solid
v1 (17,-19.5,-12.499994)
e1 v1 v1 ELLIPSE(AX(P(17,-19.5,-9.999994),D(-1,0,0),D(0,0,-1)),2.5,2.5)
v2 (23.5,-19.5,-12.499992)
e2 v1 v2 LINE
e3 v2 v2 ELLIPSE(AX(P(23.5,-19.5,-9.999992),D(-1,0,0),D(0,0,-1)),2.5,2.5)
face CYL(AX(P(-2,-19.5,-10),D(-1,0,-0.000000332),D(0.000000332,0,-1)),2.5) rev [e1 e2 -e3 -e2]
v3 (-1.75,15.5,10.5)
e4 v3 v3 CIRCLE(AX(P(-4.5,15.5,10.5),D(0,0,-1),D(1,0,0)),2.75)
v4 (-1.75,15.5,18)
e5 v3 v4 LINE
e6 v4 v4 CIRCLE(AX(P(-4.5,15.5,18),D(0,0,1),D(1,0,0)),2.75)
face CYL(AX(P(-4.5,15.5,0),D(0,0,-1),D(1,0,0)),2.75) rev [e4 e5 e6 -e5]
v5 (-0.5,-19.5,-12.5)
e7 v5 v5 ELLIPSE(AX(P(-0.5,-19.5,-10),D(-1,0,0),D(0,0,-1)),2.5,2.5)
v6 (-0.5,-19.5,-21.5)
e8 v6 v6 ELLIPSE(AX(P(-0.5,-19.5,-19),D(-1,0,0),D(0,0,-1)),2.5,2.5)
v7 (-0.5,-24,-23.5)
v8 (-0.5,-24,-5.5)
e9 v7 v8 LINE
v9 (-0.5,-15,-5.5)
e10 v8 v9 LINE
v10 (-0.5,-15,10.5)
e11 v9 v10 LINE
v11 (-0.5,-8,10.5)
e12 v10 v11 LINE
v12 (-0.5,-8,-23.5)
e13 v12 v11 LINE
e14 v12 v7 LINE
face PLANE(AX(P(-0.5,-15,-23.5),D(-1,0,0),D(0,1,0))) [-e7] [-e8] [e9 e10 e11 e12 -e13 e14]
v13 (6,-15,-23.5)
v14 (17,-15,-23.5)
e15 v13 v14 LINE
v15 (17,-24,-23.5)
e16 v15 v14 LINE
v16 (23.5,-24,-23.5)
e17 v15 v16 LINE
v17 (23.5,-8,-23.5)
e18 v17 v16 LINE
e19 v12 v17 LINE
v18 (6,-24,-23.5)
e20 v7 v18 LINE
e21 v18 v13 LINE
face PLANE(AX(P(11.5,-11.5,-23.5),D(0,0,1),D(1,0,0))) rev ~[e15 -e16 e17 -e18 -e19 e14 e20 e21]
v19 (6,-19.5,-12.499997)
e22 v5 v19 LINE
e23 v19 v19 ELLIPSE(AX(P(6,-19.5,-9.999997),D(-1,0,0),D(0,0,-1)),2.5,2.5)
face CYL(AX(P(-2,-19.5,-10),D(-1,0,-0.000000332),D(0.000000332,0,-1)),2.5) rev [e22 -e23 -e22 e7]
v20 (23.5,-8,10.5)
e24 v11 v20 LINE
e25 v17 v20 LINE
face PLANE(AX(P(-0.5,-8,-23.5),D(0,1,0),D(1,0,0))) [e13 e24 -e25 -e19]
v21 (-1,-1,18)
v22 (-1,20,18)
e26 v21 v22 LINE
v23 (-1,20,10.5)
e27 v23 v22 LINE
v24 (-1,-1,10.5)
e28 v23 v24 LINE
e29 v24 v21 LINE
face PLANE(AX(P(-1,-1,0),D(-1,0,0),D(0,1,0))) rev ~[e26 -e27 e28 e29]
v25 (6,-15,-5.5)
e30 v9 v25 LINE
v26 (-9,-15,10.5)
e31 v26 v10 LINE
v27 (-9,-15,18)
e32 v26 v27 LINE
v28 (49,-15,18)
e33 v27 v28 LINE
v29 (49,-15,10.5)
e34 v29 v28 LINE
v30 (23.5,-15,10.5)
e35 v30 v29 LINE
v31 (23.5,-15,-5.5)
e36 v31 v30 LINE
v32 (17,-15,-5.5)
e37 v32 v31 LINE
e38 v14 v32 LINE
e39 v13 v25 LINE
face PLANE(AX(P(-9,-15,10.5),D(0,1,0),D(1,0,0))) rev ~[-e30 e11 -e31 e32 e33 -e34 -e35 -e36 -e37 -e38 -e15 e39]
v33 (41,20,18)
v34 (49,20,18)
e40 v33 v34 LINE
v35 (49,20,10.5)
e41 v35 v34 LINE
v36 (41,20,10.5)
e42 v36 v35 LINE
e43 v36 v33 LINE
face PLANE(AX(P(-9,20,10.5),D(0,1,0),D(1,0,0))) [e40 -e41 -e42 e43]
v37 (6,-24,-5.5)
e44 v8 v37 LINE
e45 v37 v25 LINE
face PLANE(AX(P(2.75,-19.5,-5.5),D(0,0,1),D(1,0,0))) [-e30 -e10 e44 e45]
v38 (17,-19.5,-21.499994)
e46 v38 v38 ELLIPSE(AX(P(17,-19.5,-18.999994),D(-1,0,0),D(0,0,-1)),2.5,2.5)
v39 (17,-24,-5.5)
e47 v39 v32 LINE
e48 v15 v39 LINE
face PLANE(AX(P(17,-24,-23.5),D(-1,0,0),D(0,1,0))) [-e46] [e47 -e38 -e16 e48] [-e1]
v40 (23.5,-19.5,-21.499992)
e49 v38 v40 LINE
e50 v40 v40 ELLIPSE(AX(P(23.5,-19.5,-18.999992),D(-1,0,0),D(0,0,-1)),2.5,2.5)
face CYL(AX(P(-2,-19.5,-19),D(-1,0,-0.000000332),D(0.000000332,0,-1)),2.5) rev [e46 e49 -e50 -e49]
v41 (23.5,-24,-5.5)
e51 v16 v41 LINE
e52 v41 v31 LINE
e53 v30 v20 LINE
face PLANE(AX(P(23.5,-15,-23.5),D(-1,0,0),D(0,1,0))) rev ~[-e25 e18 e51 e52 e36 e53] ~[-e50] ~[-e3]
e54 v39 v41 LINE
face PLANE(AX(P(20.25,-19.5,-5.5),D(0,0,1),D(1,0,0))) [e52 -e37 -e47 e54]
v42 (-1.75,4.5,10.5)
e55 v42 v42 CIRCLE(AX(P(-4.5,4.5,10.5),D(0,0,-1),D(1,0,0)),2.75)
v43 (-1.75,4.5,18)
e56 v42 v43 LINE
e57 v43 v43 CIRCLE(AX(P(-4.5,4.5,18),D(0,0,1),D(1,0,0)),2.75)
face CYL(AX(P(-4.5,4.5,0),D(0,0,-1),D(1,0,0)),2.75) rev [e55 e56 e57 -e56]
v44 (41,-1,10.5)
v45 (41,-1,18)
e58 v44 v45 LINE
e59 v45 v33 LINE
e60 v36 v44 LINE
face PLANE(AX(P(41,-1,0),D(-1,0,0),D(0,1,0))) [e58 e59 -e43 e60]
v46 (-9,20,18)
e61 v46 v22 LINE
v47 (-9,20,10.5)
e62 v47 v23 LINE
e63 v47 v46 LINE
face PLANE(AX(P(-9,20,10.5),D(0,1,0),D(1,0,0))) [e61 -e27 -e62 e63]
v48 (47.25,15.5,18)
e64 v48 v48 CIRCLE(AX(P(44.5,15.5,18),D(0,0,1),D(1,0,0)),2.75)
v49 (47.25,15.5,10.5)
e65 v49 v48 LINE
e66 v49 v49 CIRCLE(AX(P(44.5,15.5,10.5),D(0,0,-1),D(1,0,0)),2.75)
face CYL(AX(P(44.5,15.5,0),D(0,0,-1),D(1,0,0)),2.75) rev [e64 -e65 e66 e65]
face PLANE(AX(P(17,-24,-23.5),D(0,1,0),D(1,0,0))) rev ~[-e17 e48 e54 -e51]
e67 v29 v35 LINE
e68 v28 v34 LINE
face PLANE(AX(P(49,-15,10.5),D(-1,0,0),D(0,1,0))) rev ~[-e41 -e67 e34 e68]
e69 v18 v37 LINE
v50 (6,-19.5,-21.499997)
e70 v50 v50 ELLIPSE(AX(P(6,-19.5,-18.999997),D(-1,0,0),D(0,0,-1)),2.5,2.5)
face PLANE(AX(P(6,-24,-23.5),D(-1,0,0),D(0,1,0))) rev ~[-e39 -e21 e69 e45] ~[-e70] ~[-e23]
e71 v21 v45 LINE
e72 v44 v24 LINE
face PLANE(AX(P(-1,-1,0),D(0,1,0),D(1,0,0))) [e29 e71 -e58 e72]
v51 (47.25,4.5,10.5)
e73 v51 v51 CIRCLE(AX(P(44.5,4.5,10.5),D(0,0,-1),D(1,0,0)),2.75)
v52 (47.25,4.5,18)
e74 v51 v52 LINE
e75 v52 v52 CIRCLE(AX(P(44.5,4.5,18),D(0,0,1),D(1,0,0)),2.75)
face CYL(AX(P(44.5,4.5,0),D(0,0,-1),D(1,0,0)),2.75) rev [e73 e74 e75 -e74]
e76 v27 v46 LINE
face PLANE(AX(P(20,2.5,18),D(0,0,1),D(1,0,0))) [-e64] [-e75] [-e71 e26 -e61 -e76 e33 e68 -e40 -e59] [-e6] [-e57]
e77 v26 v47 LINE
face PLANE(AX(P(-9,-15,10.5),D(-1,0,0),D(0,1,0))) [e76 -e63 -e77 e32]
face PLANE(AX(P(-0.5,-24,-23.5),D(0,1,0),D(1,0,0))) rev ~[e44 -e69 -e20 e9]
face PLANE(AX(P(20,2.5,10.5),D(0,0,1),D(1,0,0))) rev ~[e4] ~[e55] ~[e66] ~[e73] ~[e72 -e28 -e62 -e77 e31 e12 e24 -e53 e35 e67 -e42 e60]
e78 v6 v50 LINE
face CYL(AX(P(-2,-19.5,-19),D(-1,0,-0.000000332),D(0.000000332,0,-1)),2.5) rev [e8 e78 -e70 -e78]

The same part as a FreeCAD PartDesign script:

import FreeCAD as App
import Part
import Sketcher

V = App.Vector
Q = App.Units.Quantity

doc = App.newDocument("Part")
body = doc.addObject("PartDesign::Body", "Body")

# Sketch on XY plane
sketch1 = doc.addObject("Sketcher::SketchObject", "Sketch")
body.addObject(sketch1)
sketch1.AttachmentSupport = (doc.XY_Plane, [""])
sketch1.MapMode = "FlatFace"
sketch1.addGeometry(Part.Circle(V(0, 0, 0), V(0, 0, 1), 2.5), False)
sketch1.addConstraint([
    Sketcher.Constraint("Coincident", 0, 3, -1, 1),
    Sketcher.Constraint("Diameter", 0, Q("5 mm")),
])
pad1 = doc.addObject("PartDesign::Pad", "Pad")
body.addObject(pad1)
pad1.Profile = sketch1
pad1.Length = 27
body2 = doc.addObject("PartDesign::Body", "Body001")
doc.recompute()

body.Placement = App.Placement(V(-2, -19.5, -10), App.Rotation(V(0, 1, 0), 89.999981))
boolean = doc.addObject("PartDesign::Boolean", "Boolean")
body2.addObject(boolean)
boolean.Type = "Fuse"
boolean.addObjects([body])
body3 = doc.addObject("PartDesign::Body", "Body002")

# Sketch on XY plane
sketch2 = doc.addObject("Sketcher::SketchObject", "Sketch001")
body3.addObject(sketch2)
sketch2.AttachmentSupport = (doc.getObject("XY_Plane002"), [""])
sketch2.MapMode = "FlatFace"
sketch2.addGeometry(Part.Circle(V(0, 0, 0), V(0, 0, 1), 2.5), False)
sketch2.addConstraint([
    Sketcher.Constraint("Coincident", 0, 3, -1, 1),
    Sketcher.Constraint("Diameter", 0, Q("5 mm")),
])
pad2 = doc.addObject("PartDesign::Pad", "Pad001")
body3.addObject(pad2)
pad2.Profile = sketch2
pad2.Length = 27
body4 = doc.addObject("PartDesign::Body", "Body003")
body4.AllowCompound = True
doc.recompute()

body3.Placement = App.Placement(V(-2, -19.5, -19), App.Rotation(V(0, 1, 0), 89.999981))
boolean2 = doc.addObject("PartDesign::Boolean", "Boolean001")
body4.addObject(boolean2)
boolean2.Type = "Fuse"
boolean2.addObjects([body3])
doc.recompute()

boolean3 = doc.addObject("PartDesign::Boolean", "Boolean002")
body4.addObject(boolean3)
boolean3.Type = "Fuse"
boolean3.addObjects([body2])
body5 = doc.addObject("PartDesign::Body", "Body004")

# Sketch on XY plane
sketch3 = doc.addObject("Sketcher::SketchObject", "Sketch002")
body5.addObject(sketch3)
sketch3.AttachmentSupport = (doc.getObject("XY_Plane004"), [""])
sketch3.MapMode = "FlatFace"
sketch3.AttachmentOffset = App.Placement(V(0, 0, -23.5), App.Rotation())
sketch3.addGeometry([
    Part.LineSegment(V(-0.5, -15, 0), V(-0.5, -24, 0)),
    Part.LineSegment(V(-0.5, -24, 0), V(6, -24, 0)),
    Part.LineSegment(V(6, -24, 0), V(6, -15, 0)),
    Part.LineSegment(V(6, -15, 0), V(-0.5, -15, 0)),
], False)
sketch3.addConstraint([
    Sketcher.Constraint("Coincident", 0, 2, 1, 1),
    Sketcher.Constraint("Coincident", 1, 2, 2, 1),
    Sketcher.Constraint("Coincident", 2, 2, 3, 1),
    Sketcher.Constraint("Coincident", 3, 2, 0, 1),
    Sketcher.Constraint("Vertical", 0),
    Sketcher.Constraint("Horizontal", 1),
    Sketcher.Constraint("Vertical", 2),
    Sketcher.Constraint("Horizontal", 3),
    Sketcher.Constraint("DistanceY", 0, 2, 0, 1, Q("9 mm")),
    Sketcher.Constraint("DistanceX", 1, 1, 1, 2, Q("6.5 mm")),
    Sketcher.Constraint("DistanceY", 0, 2, -1, 1, Q("24 mm")),
    Sketcher.Constraint("DistanceX", -1, 1, 1, 2, Q("6 mm")),
])
pad3 = doc.addObject("PartDesign::Pad", "Pad002")
body5.addObject(pad3)
pad3.Profile = sketch3
pad3.Length = 18
body6 = doc.addObject("PartDesign::Body", "Body005")

# Sketch on XY plane
sketch4 = doc.addObject("Sketcher::SketchObject", "Sketch003")
body6.addObject(sketch4)
sketch4.AttachmentSupport = (doc.getObject("XY_Plane005"), [""])
sketch4.MapMode = "FlatFace"
sketch4.AttachmentOffset = App.Placement(V(0, 0, -23.5), App.Rotation())
sketch4.addGeometry([
    Part.LineSegment(V(-0.5, -8, 0), V(-0.5, -15, 0)),
    Part.LineSegment(V(-0.5, -15, 0), V(23.5, -15, 0)),
    Part.LineSegment(V(23.5, -15, 0), V(23.5, -8, 0)),
    Part.LineSegment(V(23.5, -8, 0), V(-0.5, -8, 0)),
], False)
sketch4.addConstraint([
    Sketcher.Constraint("Coincident", 0, 2, 1, 1),
    Sketcher.Constraint("Coincident", 1, 2, 2, 1),
    Sketcher.Constraint("Coincident", 2, 2, 3, 1),
    Sketcher.Constraint("Coincident", 3, 2, 0, 1),
    Sketcher.Constraint("Vertical", 0),
    Sketcher.Constraint("Horizontal", 1),
    Sketcher.Constraint("Vertical", 2),
    Sketcher.Constraint("Horizontal", 3),
    Sketcher.Constraint("DistanceX", 1, 1, 1, 2, Q("24 mm")),
    Sketcher.Constraint("DistanceY", 0, 2, 0, 1, Q("7 mm")),
    Sketcher.Constraint("DistanceY", 0, 2, -1, 1, Q("15 mm")),
    Sketcher.Constraint("DistanceX", 0, 2, -1, 1, Q("0.5 mm")),
])
pad4 = doc.addObject("PartDesign::Pad", "Pad003")
body6.addObject(pad4)
pad4.Profile = sketch4
pad4.Length = 34
body7 = doc.addObject("PartDesign::Body", "Body006")
body7.AllowCompound = True

# Sketch on XY plane
sketch5 = doc.addObject("Sketcher::SketchObject", "Sketch004")
body7.addObject(sketch5)
sketch5.AttachmentSupport = (doc.getObject("XY_Plane006"), [""])
sketch5.MapMode = "FlatFace"
sketch5.AttachmentOffset = App.Placement(V(0, 0, -23.5), App.Rotation())
sketch5.addGeometry([
    Part.LineSegment(V(17, -15, 0), V(17, -24, 0)),
    Part.LineSegment(V(17, -24, 0), V(23.5, -24, 0)),
    Part.LineSegment(V(23.5, -24, 0), V(23.5, -15, 0)),
    Part.LineSegment(V(23.5, -15, 0), V(17, -15, 0)),
], False)
sketch5.addConstraint([
    Sketcher.Constraint("Coincident", 0, 2, 1, 1),
    Sketcher.Constraint("Coincident", 1, 2, 2, 1),
    Sketcher.Constraint("Coincident", 2, 2, 3, 1),
    Sketcher.Constraint("Coincident", 3, 2, 0, 1),
    Sketcher.Constraint("Vertical", 0),
    Sketcher.Constraint("Horizontal", 1),
    Sketcher.Constraint("Vertical", 2),
    Sketcher.Constraint("Horizontal", 3),
    Sketcher.Constraint("DistanceY", 0, 2, 0, 1, Q("9 mm")),
    Sketcher.Constraint("DistanceX", 1, 1, 1, 2, Q("6.5 mm")),
    Sketcher.Constraint("DistanceX", -1, 1, 0, 2, Q("17 mm")),
    Sketcher.Constraint("DistanceY", 0, 2, -1, 1, Q("24 mm")),
])
pad5 = doc.addObject("PartDesign::Pad", "Pad004")
body7.addObject(pad5)
pad5.Profile = sketch5
pad5.Length = 18
doc.recompute()

boolean4 = doc.addObject("PartDesign::Boolean", "Boolean003")
body7.addObject(boolean4)
boolean4.Type = "Fuse"
boolean4.addObjects([body5])
doc.recompute()

boolean5 = doc.addObject("PartDesign::Boolean", "Boolean004")
body7.addObject(boolean5)
boolean5.Type = "Fuse"
boolean5.addObjects([body6])
doc.recompute()

boolean6 = doc.addObject("PartDesign::Boolean", "Boolean005")
body7.addObject(boolean6)
boolean6.Type = "Cut"
boolean6.addObjects([body4])
body8 = doc.addObject("PartDesign::Body", "Body007")

# Sketch on XY plane
sketch6 = doc.addObject("Sketcher::SketchObject", "Sketch005")
body8.addObject(sketch6)
sketch6.AttachmentSupport = (doc.getObject("XY_Plane007"), [""])
sketch6.MapMode = "FlatFace"
sketch6.addGeometry([
    Part.LineSegment(V(-1, 21, 0), V(-1, -1, 0)),
    Part.LineSegment(V(-1, -1, 0), V(41, -1, 0)),
    Part.LineSegment(V(41, -1, 0), V(41, 21, 0)),
    Part.LineSegment(V(41, 21, 0), V(-1, 21, 0)),
], False)
sketch6.addConstraint([
    Sketcher.Constraint("Coincident", 0, 2, 1, 1),
    Sketcher.Constraint("Coincident", 1, 2, 2, 1),
    Sketcher.Constraint("Coincident", 2, 2, 3, 1),
    Sketcher.Constraint("Coincident", 3, 2, 0, 1),
    Sketcher.Constraint("Vertical", 0),
    Sketcher.Constraint("Horizontal", 1),
    Sketcher.Constraint("Vertical", 2),
    Sketcher.Constraint("Horizontal", 3),
    Sketcher.Constraint("DistanceX", 1, 1, 1, 2, Q("42 mm")),
    Sketcher.Constraint("DistanceY", 0, 2, 0, 1, Q("22 mm")),
    Sketcher.Constraint("DistanceX", 0, 2, -1, 1, Q("1 mm")),
    Sketcher.Constraint("DistanceY", 0, 2, -1, 1, Q("1 mm")),
])
pad6 = doc.addObject("PartDesign::Pad", "Pad005")
body8.addObject(pad6)
pad6.Profile = sketch6
pad6.Length = 18
body9 = doc.addObject("PartDesign::Body", "Body008")

# Sketch on XY plane
sketch7 = doc.addObject("Sketcher::SketchObject", "Sketch006")
body9.addObject(sketch7)
sketch7.AttachmentSupport = (doc.getObject("XY_Plane008"), [""])
sketch7.MapMode = "FlatFace"
sketch7.addGeometry(Part.Circle(V(-4.5, 15.5, 0), V(0, 0, 1), 2.75), False)
sketch7.addConstraint([
    Sketcher.Constraint("Diameter", 0, Q("5.5 mm")),
    Sketcher.Constraint("DistanceX", 0, 3, -1, 1, Q("4.5 mm")),
    Sketcher.Constraint("DistanceY", -1, 1, 0, 3, Q("15.5 mm")),
])
pad7 = doc.addObject("PartDesign::Pad", "Pad006")
body9.addObject(pad7)
pad7.Profile = sketch7
pad7.Length = 18
body10 = doc.addObject("PartDesign::Body", "Body009")

# Sketch on XY plane
sketch8 = doc.addObject("Sketcher::SketchObject", "Sketch007")
body10.addObject(sketch8)
sketch8.AttachmentSupport = (doc.getObject("XY_Plane009"), [""])
sketch8.MapMode = "FlatFace"
sketch8.addGeometry(Part.Circle(V(44.5, 4.5, 0), V(0, 0, 1), 2.75), False)
sketch8.addConstraint([
    Sketcher.Constraint("Diameter", 0, Q("5.5 mm")),
    Sketcher.Constraint("DistanceX", -1, 1, 0, 3, Q("44.5 mm")),
    Sketcher.Constraint("DistanceY", -1, 1, 0, 3, Q("4.5 mm")),
])
pad8 = doc.addObject("PartDesign::Pad", "Pad007")
body10.addObject(pad8)
pad8.Profile = sketch8
pad8.Length = 18
body11 = doc.addObject("PartDesign::Body", "Body010")

# Sketch on XY plane
sketch9 = doc.addObject("Sketcher::SketchObject", "Sketch008")
body11.addObject(sketch9)
sketch9.AttachmentSupport = (doc.getObject("XY_Plane010"), [""])
sketch9.MapMode = "FlatFace"
sketch9.addGeometry(Part.Circle(V(44.5, 15.5, 0), V(0, 0, 1), 2.75), False)
sketch9.addConstraint([
    Sketcher.Constraint("Diameter", 0, Q("5.5 mm")),
    Sketcher.Constraint("DistanceX", -1, 1, 0, 3, Q("44.5 mm")),
    Sketcher.Constraint("DistanceY", -1, 1, 0, 3, Q("15.5 mm")),
])
pad9 = doc.addObject("PartDesign::Pad", "Pad008")
body11.addObject(pad9)
pad9.Profile = sketch9
pad9.Length = 18
body12 = doc.addObject("PartDesign::Body", "Body011")
body12.AllowCompound = True

# Sketch on XY plane
sketch10 = doc.addObject("Sketcher::SketchObject", "Sketch009")
body12.addObject(sketch10)
sketch10.AttachmentSupport = (doc.getObject("XY_Plane011"), [""])
sketch10.MapMode = "FlatFace"
sketch10.addGeometry(Part.Circle(V(-4.5, 4.5, 0), V(0, 0, 1), 2.75), False)
sketch10.addConstraint([
    Sketcher.Constraint("Diameter", 0, Q("5.5 mm")),
    Sketcher.Constraint("DistanceX", 0, 3, -1, 1, Q("4.5 mm")),
    Sketcher.Constraint("DistanceY", -1, 1, 0, 3, Q("4.5 mm")),
])
pad10 = doc.addObject("PartDesign::Pad", "Pad009")
body12.addObject(pad10)
pad10.Profile = sketch10
pad10.Length = 18
doc.recompute()

boolean7 = doc.addObject("PartDesign::Boolean", "Boolean006")
body12.addObject(boolean7)
boolean7.Type = "Fuse"
boolean7.addObjects([body9])
doc.recompute()

boolean8 = doc.addObject("PartDesign::Boolean", "Boolean007")
body12.addObject(boolean8)
boolean8.Type = "Fuse"
boolean8.addObjects([body10])
doc.recompute()

boolean9 = doc.addObject("PartDesign::Boolean", "Boolean008")
body12.addObject(boolean9)
boolean9.Type = "Fuse"
boolean9.addObjects([body11])
doc.recompute()

boolean10 = doc.addObject("PartDesign::Boolean", "Boolean009")
body12.addObject(boolean10)
boolean10.Type = "Fuse"
boolean10.addObjects([body8])
body13 = doc.addObject("PartDesign::Body", "Body012")

# Sketch on XY plane
sketch11 = doc.addObject("Sketcher::SketchObject", "Sketch010")
body13.addObject(sketch11)
sketch11.AttachmentSupport = (doc.getObject("XY_Plane012"), [""])
sketch11.MapMode = "FlatFace"
sketch11.AttachmentOffset = App.Placement(V(0, 0, 10.5), App.Rotation())
sketch11.addGeometry([
    Part.LineSegment(V(-9, 20, 0), V(-9, -15, 0)),
    Part.LineSegment(V(-9, -15, 0), V(49, -15, 0)),
    Part.LineSegment(V(49, -15, 0), V(49, 20, 0)),
    Part.LineSegment(V(49, 20, 0), V(-9, 20, 0)),
], False)
sketch11.addConstraint([
    Sketcher.Constraint("Coincident", 0, 2, 1, 1),
    Sketcher.Constraint("Coincident", 1, 2, 2, 1),
    Sketcher.Constraint("Coincident", 2, 2, 3, 1),
    Sketcher.Constraint("Coincident", 3, 2, 0, 1),
    Sketcher.Constraint("Vertical", 0),
    Sketcher.Constraint("Horizontal", 1),
    Sketcher.Constraint("Vertical", 2),
    Sketcher.Constraint("Horizontal", 3),
    Sketcher.Constraint("DistanceX", 1, 1, 1, 2, Q("58 mm")),
    Sketcher.Constraint("DistanceY", 0, 2, 0, 1, Q("35 mm")),
    Sketcher.Constraint("DistanceX", 0, 2, -1, 1, Q("9 mm")),
    Sketcher.Constraint("DistanceY", 0, 2, -1, 1, Q("15 mm")),
])
pad11 = doc.addObject("PartDesign::Pad", "Pad010")
body13.addObject(pad11)
pad11.Profile = sketch11
pad11.Length = 7.5
doc.recompute()

boolean11 = doc.addObject("PartDesign::Boolean", "Boolean010")
body13.addObject(boolean11)
boolean11.Type = "Cut"
boolean11.addObjects([body12])
doc.recompute()

boolean12 = doc.addObject("PartDesign::Boolean", "Boolean011")
body13.addObject(boolean12)
boolean12.Type = "Fuse"
boolean12.addObjects([body7])

doc.recompute()
